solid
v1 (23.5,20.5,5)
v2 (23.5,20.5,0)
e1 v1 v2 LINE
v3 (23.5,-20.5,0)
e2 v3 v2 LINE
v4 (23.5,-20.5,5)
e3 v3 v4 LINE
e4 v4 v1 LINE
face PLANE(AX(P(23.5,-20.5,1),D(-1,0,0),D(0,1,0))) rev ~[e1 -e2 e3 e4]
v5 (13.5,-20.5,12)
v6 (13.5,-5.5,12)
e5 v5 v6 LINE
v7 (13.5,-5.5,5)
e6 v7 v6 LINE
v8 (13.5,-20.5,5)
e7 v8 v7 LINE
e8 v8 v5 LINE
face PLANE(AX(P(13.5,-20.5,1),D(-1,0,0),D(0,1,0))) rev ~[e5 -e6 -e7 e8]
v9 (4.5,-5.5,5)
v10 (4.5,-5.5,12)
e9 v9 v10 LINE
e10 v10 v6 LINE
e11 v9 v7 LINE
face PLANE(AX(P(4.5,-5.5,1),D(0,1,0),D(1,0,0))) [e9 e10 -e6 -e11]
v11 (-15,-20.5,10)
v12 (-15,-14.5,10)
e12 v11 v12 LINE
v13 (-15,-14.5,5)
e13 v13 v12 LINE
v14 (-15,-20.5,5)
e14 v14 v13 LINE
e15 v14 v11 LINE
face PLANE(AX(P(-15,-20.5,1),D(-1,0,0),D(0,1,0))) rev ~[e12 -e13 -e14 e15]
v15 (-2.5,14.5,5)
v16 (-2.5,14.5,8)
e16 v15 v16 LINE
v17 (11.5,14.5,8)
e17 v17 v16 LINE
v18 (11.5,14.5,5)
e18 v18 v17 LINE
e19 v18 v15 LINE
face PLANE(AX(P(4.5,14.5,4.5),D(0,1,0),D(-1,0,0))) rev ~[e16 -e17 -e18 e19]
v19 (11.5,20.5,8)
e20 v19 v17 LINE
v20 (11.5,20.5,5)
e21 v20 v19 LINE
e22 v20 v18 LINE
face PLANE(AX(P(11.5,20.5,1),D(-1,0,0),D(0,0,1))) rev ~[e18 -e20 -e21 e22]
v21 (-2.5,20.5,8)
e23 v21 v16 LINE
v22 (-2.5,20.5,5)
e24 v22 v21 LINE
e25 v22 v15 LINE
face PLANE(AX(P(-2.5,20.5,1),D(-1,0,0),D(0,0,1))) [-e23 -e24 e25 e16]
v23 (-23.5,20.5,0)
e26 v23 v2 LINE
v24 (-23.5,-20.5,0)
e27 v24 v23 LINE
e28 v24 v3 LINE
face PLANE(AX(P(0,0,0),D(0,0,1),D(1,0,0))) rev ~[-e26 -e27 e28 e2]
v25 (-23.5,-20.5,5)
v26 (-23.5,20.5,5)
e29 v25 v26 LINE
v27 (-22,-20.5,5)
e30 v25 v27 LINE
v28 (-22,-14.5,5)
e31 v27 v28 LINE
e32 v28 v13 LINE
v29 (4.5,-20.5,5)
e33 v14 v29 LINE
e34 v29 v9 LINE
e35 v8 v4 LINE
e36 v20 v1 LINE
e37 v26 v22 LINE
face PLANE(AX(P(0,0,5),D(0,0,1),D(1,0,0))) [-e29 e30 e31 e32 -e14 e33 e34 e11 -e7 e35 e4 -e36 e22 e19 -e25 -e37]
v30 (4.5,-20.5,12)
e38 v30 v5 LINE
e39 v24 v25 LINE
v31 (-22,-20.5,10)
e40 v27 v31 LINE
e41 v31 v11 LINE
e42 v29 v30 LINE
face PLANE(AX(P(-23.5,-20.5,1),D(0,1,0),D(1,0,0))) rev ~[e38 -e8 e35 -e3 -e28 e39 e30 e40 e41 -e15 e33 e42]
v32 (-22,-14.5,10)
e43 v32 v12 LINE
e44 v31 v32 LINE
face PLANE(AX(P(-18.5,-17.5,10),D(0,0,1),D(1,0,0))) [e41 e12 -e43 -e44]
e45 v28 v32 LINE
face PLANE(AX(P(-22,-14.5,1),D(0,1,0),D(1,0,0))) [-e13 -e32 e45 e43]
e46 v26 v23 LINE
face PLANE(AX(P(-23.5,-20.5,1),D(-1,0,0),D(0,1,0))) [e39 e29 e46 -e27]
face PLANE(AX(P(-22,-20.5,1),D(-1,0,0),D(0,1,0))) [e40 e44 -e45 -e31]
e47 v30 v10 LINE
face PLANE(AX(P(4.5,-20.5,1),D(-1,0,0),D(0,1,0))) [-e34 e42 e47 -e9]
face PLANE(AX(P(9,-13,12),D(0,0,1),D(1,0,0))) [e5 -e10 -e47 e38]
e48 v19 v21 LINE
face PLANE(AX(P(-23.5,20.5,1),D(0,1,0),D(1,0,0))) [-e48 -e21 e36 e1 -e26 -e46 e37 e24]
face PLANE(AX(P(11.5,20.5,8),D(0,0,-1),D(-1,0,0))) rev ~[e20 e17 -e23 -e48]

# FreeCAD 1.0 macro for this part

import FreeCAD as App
import Part
import Sketcher

V = App.Vector


def add_polygon(sketch, points):
    """Adds a closed chain of lines whose ends are joined by coincident constraints."""
    first, n = sketch.GeometryCount, len(points)
    for a, b in zip(points, points[1:] + points[:1]):
        sketch.addGeometry(Part.LineSegment(App.Vector(*a, 0), App.Vector(*b, 0)), False)
    for i in range(n):
        sketch.addConstraint(Sketcher.Constraint("Coincident", first + i, 2, first + (i + 1) % n, 1))

doc = App.newDocument("Part")
body = doc.addObject("PartDesign::Body", "Body")

# Sketch on XY plane
sketch1 = doc.addObject("Sketcher::SketchObject", "Sketch")
body.addObject(sketch1)
sketch1.AttachmentSupport = (doc.XY_Plane, [""])
sketch1.MapMode = "FlatFace"
add_polygon(sketch1, [(-24, 20), (-24, -20), (24, -20), (24, 20)])  # lines 0-3
sketch1.addConstraint(Sketcher.Constraint("Vertical", 0))
sketch1.addConstraint(Sketcher.Constraint("Horizontal", 1))
sketch1.addConstraint(Sketcher.Constraint("Vertical", 2))
sketch1.addConstraint(Sketcher.Constraint("Horizontal", 3))
sketch1.addConstraint(Sketcher.Constraint("Symmetric", 0, 2, 2, 2, -1, 1))
sketch1.addConstraint(Sketcher.Constraint("DistanceX", 1, 1, 1, 2, 47.0))
sketch1.addConstraint(Sketcher.Constraint("DistanceY", 0, 2, 0, 1, 41.0))
pad1 = doc.addObject("PartDesign::Pad", "Pad")
body.addObject(pad1)
pad1.Profile = sketch1
pad1.Length = 1

# Sketch on XY plane
sketch2 = doc.addObject("Sketcher::SketchObject", "Sketch001")
body.addObject(sketch2)
sketch2.AttachmentSupport = (doc.XY_Plane, [""])
sketch2.MapMode = "FlatFace"
sketch2.AttachmentOffset = App.Placement(V(0, 0, 1), App.Rotation())
add_polygon(sketch2, [(4, -6), (4, -20), (14, -20), (14, -6)])  # lines 0-3
sketch2.addConstraint(Sketcher.Constraint("Vertical", 0))
sketch2.addConstraint(Sketcher.Constraint("Horizontal", 1))
sketch2.addConstraint(Sketcher.Constraint("Vertical", 2))
sketch2.addConstraint(Sketcher.Constraint("Horizontal", 3))
sketch2.addConstraint(Sketcher.Constraint("DistanceX", 1, 1, 1, 2, 9.0))
sketch2.addConstraint(Sketcher.Constraint("DistanceY", 0, 2, 0, 1, 15.0))
sketch2.addConstraint(Sketcher.Constraint("DistanceX", -1, 1, 0, 2, 4.5))
sketch2.addConstraint(Sketcher.Constraint("DistanceY", 0, 2, -1, 1, 20.5))
pad2 = doc.addObject("PartDesign::Pad", "Pad001")
body.addObject(pad2)
pad2.Profile = sketch2
pad2.Length = 11

# Sketch on XY plane
sketch3 = doc.addObject("Sketcher::SketchObject", "Sketch002")
body.addObject(sketch3)
sketch3.AttachmentSupport = (doc.XY_Plane, [""])
sketch3.MapMode = "FlatFace"
sketch3.AttachmentOffset = App.Placement(V(0, 0, 1), App.Rotation())
add_polygon(sketch3, [(-22, -14), (-22, -20), (-15, -20), (-15, -14)])  # lines 0-3
sketch3.addConstraint(Sketcher.Constraint("Vertical", 0))
sketch3.addConstraint(Sketcher.Constraint("Horizontal", 1))
sketch3.addConstraint(Sketcher.Constraint("Vertical", 2))
sketch3.addConstraint(Sketcher.Constraint("Horizontal", 3))
sketch3.addConstraint(Sketcher.Constraint("DistanceX", 1, 1, 1, 2, 7.0))
sketch3.addConstraint(Sketcher.Constraint("DistanceY", 0, 2, 0, 1, 6.0))
sketch3.addConstraint(Sketcher.Constraint("DistanceX", 0, 2, -1, 1, 22.0))
sketch3.addConstraint(Sketcher.Constraint("DistanceY", 0, 2, -1, 1, 20.5))
pad3 = doc.addObject("PartDesign::Pad", "Pad002")
body.addObject(pad3)
pad3.Profile = sketch3
pad3.Length = 9

# Sketch on XY plane
sketch4 = doc.addObject("Sketcher::SketchObject", "Sketch003")
body.addObject(sketch4)
sketch4.AttachmentSupport = (doc.XY_Plane, [""])
sketch4.MapMode = "FlatFace"
sketch4.AttachmentOffset = App.Placement(V(0, 0, 1), App.Rotation())
add_polygon(sketch4, [(-24, 20), (-24, -20), (24, -20), (24, 20)])  # lines 0-3
sketch4.addConstraint(Sketcher.Constraint("Vertical", 0))
sketch4.addConstraint(Sketcher.Constraint("Horizontal", 1))
sketch4.addConstraint(Sketcher.Constraint("Vertical", 2))
sketch4.addConstraint(Sketcher.Constraint("Horizontal", 3))
sketch4.addConstraint(Sketcher.Constraint("Symmetric", 0, 2, 2, 2, -1, 1))
sketch4.addConstraint(Sketcher.Constraint("DistanceX", 1, 1, 1, 2, 47.0))
sketch4.addConstraint(Sketcher.Constraint("DistanceY", 0, 2, 0, 1, 41.0))
pad4 = doc.addObject("PartDesign::Pad", "Pad003")
body.addObject(pad4)
pad4.Profile = sketch4
pad4.Length = 4

# Sketch on XZ plane
sketch5 = doc.addObject("Sketcher::SketchObject", "Sketch004")
body.addObject(sketch5)
sketch5.AttachmentSupport = (doc.XZ_Plane, [""])
sketch5.MapMode = "FlatFace"
sketch5.AttachmentOffset = App.Placement(V(0, 0, -20.5), App.Rotation())
add_polygon(sketch5, [(12, 8), (12, 1), (-2, 1), (-2, 8)])  # lines 0-3
sketch5.addConstraint(Sketcher.Constraint("Vertical", 0))
sketch5.addConstraint(Sketcher.Constraint("Horizontal", 1))
sketch5.addConstraint(Sketcher.Constraint("Vertical", 2))
sketch5.addConstraint(Sketcher.Constraint("Horizontal", 3))
sketch5.addConstraint(Sketcher.Constraint("DistanceX", 1, 2, 1, 1, 14.0))
sketch5.addConstraint(Sketcher.Constraint("DistanceY", 0, 2, 0, 1, 7.0))
sketch5.addConstraint(Sketcher.Constraint("DistanceY", -1, 1, 0, 2, 1.0))
sketch5.addConstraint(Sketcher.Constraint("DistanceX", -1, 1, 0, 2, 11.5))
pad5 = doc.addObject("PartDesign::Pad", "Pad004")
body.addObject(pad5)
pad5.Profile = sketch5
pad5.Length = 6

doc.recompute()
